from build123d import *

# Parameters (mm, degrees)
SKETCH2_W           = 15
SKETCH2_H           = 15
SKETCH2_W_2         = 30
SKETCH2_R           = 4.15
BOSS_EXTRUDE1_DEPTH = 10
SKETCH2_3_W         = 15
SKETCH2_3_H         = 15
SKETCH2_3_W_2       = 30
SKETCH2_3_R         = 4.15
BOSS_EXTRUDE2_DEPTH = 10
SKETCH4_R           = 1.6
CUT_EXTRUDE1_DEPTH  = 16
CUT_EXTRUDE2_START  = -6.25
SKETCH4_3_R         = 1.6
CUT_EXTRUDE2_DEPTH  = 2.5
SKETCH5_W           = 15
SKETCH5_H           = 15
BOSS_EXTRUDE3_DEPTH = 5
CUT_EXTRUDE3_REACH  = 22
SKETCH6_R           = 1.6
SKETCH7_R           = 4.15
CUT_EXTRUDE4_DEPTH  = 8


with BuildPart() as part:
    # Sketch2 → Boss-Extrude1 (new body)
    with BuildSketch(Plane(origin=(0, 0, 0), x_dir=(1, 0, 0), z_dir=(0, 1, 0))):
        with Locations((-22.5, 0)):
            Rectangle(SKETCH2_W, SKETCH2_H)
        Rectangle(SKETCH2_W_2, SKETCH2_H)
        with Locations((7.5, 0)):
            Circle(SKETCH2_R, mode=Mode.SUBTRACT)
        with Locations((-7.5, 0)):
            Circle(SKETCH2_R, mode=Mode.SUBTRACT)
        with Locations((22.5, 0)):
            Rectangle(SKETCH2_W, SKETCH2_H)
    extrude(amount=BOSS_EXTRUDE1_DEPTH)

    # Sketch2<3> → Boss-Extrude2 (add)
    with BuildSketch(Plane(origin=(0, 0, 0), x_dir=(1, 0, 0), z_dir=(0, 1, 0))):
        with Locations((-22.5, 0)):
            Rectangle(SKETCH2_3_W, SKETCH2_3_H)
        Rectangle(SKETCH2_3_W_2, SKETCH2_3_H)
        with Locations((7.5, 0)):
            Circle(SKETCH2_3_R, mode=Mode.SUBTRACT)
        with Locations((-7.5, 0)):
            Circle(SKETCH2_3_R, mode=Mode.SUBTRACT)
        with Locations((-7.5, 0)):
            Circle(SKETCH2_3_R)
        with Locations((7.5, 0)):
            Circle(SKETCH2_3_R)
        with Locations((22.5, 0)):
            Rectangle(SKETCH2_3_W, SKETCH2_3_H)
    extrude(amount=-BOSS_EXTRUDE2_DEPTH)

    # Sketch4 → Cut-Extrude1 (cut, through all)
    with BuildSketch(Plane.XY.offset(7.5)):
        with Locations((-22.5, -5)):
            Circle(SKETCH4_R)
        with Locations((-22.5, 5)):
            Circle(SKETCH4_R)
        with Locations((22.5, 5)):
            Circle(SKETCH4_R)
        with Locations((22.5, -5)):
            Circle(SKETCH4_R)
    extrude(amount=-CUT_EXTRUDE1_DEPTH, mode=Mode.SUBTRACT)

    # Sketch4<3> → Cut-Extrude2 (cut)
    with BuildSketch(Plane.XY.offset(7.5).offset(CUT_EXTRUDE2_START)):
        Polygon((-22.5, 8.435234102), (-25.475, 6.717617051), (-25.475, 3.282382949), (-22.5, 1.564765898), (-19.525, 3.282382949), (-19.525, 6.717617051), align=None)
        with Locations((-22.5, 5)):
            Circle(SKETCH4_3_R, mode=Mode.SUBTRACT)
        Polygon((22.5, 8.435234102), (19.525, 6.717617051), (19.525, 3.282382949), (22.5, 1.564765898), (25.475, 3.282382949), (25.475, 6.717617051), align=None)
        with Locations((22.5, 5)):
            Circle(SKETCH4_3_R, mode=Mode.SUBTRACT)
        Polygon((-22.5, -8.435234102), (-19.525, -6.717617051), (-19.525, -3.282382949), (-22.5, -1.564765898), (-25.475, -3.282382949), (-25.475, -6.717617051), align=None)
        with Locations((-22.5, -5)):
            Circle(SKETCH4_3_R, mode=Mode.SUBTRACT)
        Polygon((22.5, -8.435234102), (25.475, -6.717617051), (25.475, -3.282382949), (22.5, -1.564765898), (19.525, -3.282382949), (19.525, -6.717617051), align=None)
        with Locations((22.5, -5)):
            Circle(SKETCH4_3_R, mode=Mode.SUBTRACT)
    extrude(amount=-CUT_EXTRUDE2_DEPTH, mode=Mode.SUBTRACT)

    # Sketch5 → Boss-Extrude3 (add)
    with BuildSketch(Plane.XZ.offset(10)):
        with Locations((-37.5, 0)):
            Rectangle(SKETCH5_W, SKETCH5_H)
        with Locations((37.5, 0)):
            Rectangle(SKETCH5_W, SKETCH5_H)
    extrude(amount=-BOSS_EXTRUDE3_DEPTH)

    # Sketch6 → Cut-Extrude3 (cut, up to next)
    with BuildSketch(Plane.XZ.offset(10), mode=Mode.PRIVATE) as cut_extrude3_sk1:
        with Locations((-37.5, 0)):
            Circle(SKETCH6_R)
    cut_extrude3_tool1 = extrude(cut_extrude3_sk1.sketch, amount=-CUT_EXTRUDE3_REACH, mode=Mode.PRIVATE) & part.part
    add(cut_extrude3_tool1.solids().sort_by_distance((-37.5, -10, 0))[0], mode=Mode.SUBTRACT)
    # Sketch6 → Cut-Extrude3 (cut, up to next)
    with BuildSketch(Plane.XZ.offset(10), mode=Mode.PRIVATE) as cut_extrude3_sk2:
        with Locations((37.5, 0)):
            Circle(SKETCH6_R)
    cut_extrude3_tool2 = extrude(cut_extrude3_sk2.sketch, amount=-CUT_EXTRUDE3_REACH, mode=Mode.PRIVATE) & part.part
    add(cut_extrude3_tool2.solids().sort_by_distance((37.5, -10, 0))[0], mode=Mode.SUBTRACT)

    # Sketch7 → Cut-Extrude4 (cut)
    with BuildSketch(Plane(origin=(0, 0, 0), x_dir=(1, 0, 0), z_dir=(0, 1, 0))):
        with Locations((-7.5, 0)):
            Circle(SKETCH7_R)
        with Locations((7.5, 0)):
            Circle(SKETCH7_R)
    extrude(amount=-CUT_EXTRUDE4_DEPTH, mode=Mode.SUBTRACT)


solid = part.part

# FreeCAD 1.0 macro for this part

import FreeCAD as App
import Part
import Sketcher

V = App.Vector
Q = App.Units.Quantity

doc = App.newDocument("Part")
params = doc.addObject("Spreadsheet::Sheet", "Params")
for row, (alias, value) in enumerate([
    ("sketch1_diameter", "8.3 mm"),
    ("sketch1_width", "60 mm"),
    ("sketch1_height", "15 mm"),
    ("pad1_length", "10 mm"),
    ("sketch2_width", "60 mm"),
    ("sketch2_height", "15 mm"),
    ("pad2_length", "10 mm"),
    ("sketch3_diameter", "3.2 mm"),
    ("sketch4_diameter", "3.2 mm"),
    ("pocket2_length", "2.5 mm"),
    ("sketch5_width", "15 mm"),
    ("pad3_length", "5 mm"),
    ("sketch6_diameter", "3.2 mm"),
    ("sketch7_diameter", "3.2 mm"),
    ("sketch8_diameter", "8.3 mm"),
    ("pocket5_length", "8 mm"),
], start=1):
    params.set(f"A{row}", alias)
    params.set(f"B{row}", "=" + value)
    params.setAlias(f"B{row}", alias)

body = doc.addObject("PartDesign::Body", "Body")

# Sketch on XZ plane
sketch1 = body.newObject("Sketcher::SketchObject", "Sketch")
sketch1.AttachmentSupport = (doc.getObject("XZ_Plane"), [""])
sketch1.MapMode = "FlatFace"
sketch1.addGeometry([
    Part.LineSegment(V(-30, -7.5, 0), V(-30, 7.5, 0)),  # 0
    Part.LineSegment(V(-30, 7.5, 0), V(30, 7.5, 0)),  # 1
    Part.LineSegment(V(30, 7.5, 0), V(30, -7.5, 0)),  # 2
    Part.LineSegment(V(30, -7.5, 0), V(-30, -7.5, 0)),  # 3
    Part.Circle(V(-7.5, 0, 0), V(0, 0, 1), 4.2),  # 4
    Part.Circle(V(7.5, 0, 0), V(0, 0, 1), 4.2),  # 5
], False)
sketch1.addConstraint([
    Sketcher.Constraint("Coincident", 0, 2, 1, 1),
    Sketcher.Constraint("Coincident", 1, 2, 2, 1),
    Sketcher.Constraint("Coincident", 2, 2, 3, 1),
    Sketcher.Constraint("Coincident", 3, 2, 0, 1),
    Sketcher.Constraint("Vertical", 0),
    Sketcher.Constraint("Horizontal", 1),
    Sketcher.Constraint("Vertical", 2),
    Sketcher.Constraint("Horizontal", 3),
    Sketcher.Constraint("Equal", 4, 5),
    Sketcher.Constraint("Symmetric", 4, 3, 5, 3, -1, 1),
    Sketcher.Constraint("Symmetric", 0, 2, 2, 2, -1, 1),
    Sketcher.Constraint("PointOnObject", 4, 3, -1),
    Sketcher.Constraint("Diameter", 4, Q("8.3 mm")),
    Sketcher.Constraint("DistanceX", 1, 1, 1, 2, Q("60 mm")),
    Sketcher.Constraint("DistanceY", 0, 1, 0, 2, Q("15 mm")),
    Sketcher.Constraint("DistanceX", 4, 3, 5, 3, Q("15 mm")),
])
sketch1.setExpression("Constraints[12]", "Params.sketch1_diameter")
sketch1.setExpression("Constraints[13]", "Params.sketch1_width")
sketch1.setExpression("Constraints[14]", "Params.sketch1_height")
pad1 = body.newObject("PartDesign::Pad", "Pad")
pad1.Profile = sketch1
pad1.setExpression("Length", "Params.pad1_length")
pad1.Reversed = True

# Sketch on XZ plane
sketch2 = body.newObject("Sketcher::SketchObject", "Sketch001")
sketch2.AttachmentSupport = (doc.getObject("XZ_Plane"), [""])
sketch2.MapMode = "FlatFace"
sketch2.addGeometry([
    Part.LineSegment(V(-30, -8, 0), V(-30, 8, 0)),
    Part.LineSegment(V(-30, 8, 0), V(30, 8, 0)),
    Part.LineSegment(V(30, 8, 0), V(30, -8, 0)),
    Part.LineSegment(V(30, -8, 0), V(-30, -8, 0)),
], False)
sketch2.addConstraint([
    Sketcher.Constraint("Coincident", 0, 2, 1, 1),
    Sketcher.Constraint("Coincident", 1, 2, 2, 1),
    Sketcher.Constraint("Coincident", 2, 2, 3, 1),
    Sketcher.Constraint("Coincident", 3, 2, 0, 1),
    Sketcher.Constraint("Vertical", 0),
    Sketcher.Constraint("Horizontal", 1),
    Sketcher.Constraint("Vertical", 2),
    Sketcher.Constraint("Horizontal", 3),
    Sketcher.Constraint("Symmetric", 0, 2, 2, 2, -1, 1),
    Sketcher.Constraint("DistanceX", 1, 1, 1, 2, Q("60 mm")),
    Sketcher.Constraint("DistanceY", 0, 1, 0, 2, Q("15 mm")),
])
sketch2.setExpression("Constraints[9]", "Params.sketch2_width")
sketch2.setExpression("Constraints[10]", "Params.sketch2_height")
pad2 = body.newObject("PartDesign::Pad", "Pad001")
pad2.Profile = sketch2
pad2.setExpression("Length", "Params.pad2_length")

# Sketch on XY plane
sketch3 = body.newObject("Sketcher::SketchObject", "Sketch002")
sketch3.AttachmentSupport = (doc.getObject("XY_Plane"), [""])
sketch3.MapMode = "FlatFace"
sketch3.AttachmentOffset = App.Placement(V(0, 0, 7.5), App.Rotation())
sketch3.addGeometry([
    Part.Circle(V(-22.5, -5, 0), V(0, 0, 1), 1.6),
    Part.Circle(V(-22.5, 5, 0), V(0, 0, 1), 1.6),
    Part.Circle(V(22.5, 5, 0), V(0, 0, 1), 1.6),
    Part.Circle(V(22.5, -5, 0), V(0, 0, 1), 1.6),
], False)
sketch3.addConstraint([
    Sketcher.Constraint("Equal", 0, 1),
    Sketcher.Constraint("Equal", 1, 2),
    Sketcher.Constraint("Equal", 2, 3),
    Sketcher.Constraint("Symmetric", 0, 3, 2, 3, -1, 1),
    Sketcher.Constraint("Symmetric", 1, 3, 3, 3, -1, 1),
    Sketcher.Constraint("Symmetric", 1, 3, 2, 3, -2),
    Sketcher.Constraint("Diameter", 0, Q("3.2 mm")),
    Sketcher.Constraint("DistanceY", 0, 3, -1, 1, Q("5 mm")),
    Sketcher.Constraint("DistanceX", 1, 3, 2, 3, Q("45 mm")),
])
sketch3.setExpression("Constraints[6]", "Params.sketch3_diameter")
pocket1 = body.newObject("PartDesign::Pocket", "Pocket")
pocket1.Profile = sketch3
pocket1.Type = "ThroughAll"

# Sketch on XY plane
sketch4 = body.newObject("Sketcher::SketchObject", "Sketch003")
sketch4.AttachmentSupport = (doc.getObject("XY_Plane"), [""])
sketch4.MapMode = "FlatFace"
sketch4.AttachmentOffset = App.Placement(V(0, 0, 1.25), App.Rotation())
sketch4.addGeometry([
    Part.LineSegment(V(-22.5, 8.4, 0), V(-25.5, 6.7, 0)),  # 0
    Part.LineSegment(V(-25.5, 6.7, 0), V(-25.5, 3.3, 0)),  # 1
    Part.LineSegment(V(-25.5, 3.3, 0), V(-22.5, 1.6, 0)),  # 2
    Part.LineSegment(V(-22.5, 1.6, 0), V(-19.5, 3.3, 0)),  # 3
    Part.LineSegment(V(-19.5, 3.3, 0), V(-19.5, 6.7, 0)),  # 4
    Part.LineSegment(V(-19.5, 6.7, 0), V(-22.5, 8.4, 0)),  # 5
    Part.Circle(V(-22.5, 5, 0), V(0, 0, 1), 1.6),  # 6
    Part.LineSegment(V(22.5, 8.4, 0), V(19.5, 6.7, 0)),  # 7
    Part.LineSegment(V(19.5, 6.7, 0), V(19.5, 3.3, 0)),  # 8
    Part.LineSegment(V(19.5, 3.3, 0), V(22.5, 1.6, 0)),  # 9
    Part.LineSegment(V(22.5, 1.6, 0), V(25.5, 3.3, 0)),  # 10
    Part.LineSegment(V(25.5, 3.3, 0), V(25.5, 6.7, 0)),  # 11
    Part.LineSegment(V(25.5, 6.7, 0), V(22.5, 8.4, 0)),  # 12
    Part.Circle(V(22.5, 5, 0), V(0, 0, 1), 1.6),  # 13
    Part.LineSegment(V(-22.5, -8.4, 0), V(-19.5, -6.7, 0)),  # 14
    Part.LineSegment(V(-19.5, -6.7, 0), V(-19.5, -3.3, 0)),  # 15
    Part.LineSegment(V(-19.5, -3.3, 0), V(-22.5, -1.6, 0)),  # 16
    Part.LineSegment(V(-22.5, -1.6, 0), V(-25.5, -3.3, 0)),  # 17
    Part.LineSegment(V(-25.5, -3.3, 0), V(-25.5, -6.7, 0)),  # 18
    Part.LineSegment(V(-25.5, -6.7, 0), V(-22.5, -8.4, 0)),  # 19
    Part.Circle(V(-22.5, -5, 0), V(0, 0, 1), 1.6),  # 20
    Part.LineSegment(V(22.5, -8.4, 0), V(25.5, -6.7, 0)),  # 21
    Part.LineSegment(V(25.5, -6.7, 0), V(25.5, -3.3, 0)),  # 22
    Part.LineSegment(V(25.5, -3.3, 0), V(22.5, -1.6, 0)),  # 23
    Part.LineSegment(V(22.5, -1.6, 0), V(19.5, -3.3, 0)),  # 24
    Part.LineSegment(V(19.5, -3.3, 0), V(19.5, -6.7, 0)),  # 25
    Part.LineSegment(V(19.5, -6.7, 0), V(22.5, -8.4, 0)),  # 26
    Part.Circle(V(22.5, -5, 0), V(0, 0, 1), 1.6),  # 27
], False)
sketch4.addConstraint([
    Sketcher.Constraint("Coincident", 0, 2, 1, 1),
    Sketcher.Constraint("Coincident", 1, 2, 2, 1),
    Sketcher.Constraint("Coincident", 2, 2, 3, 1),
    Sketcher.Constraint("Coincident", 3, 2, 4, 1),
    Sketcher.Constraint("Coincident", 4, 2, 5, 1),
    Sketcher.Constraint("Coincident", 5, 2, 0, 1),
    Sketcher.Constraint("Coincident", 7, 2, 8, 1),
    Sketcher.Constraint("Coincident", 8, 2, 9, 1),
    Sketcher.Constraint("Coincident", 9, 2, 10, 1),
    Sketcher.Constraint("Coincident", 10, 2, 11, 1),
    Sketcher.Constraint("Coincident", 11, 2, 12, 1),
    Sketcher.Constraint("Coincident", 12, 2, 7, 1),
    Sketcher.Constraint("Coincident", 14, 2, 15, 1),
    Sketcher.Constraint("Coincident", 15, 2, 16, 1),
    Sketcher.Constraint("Coincident", 16, 2, 17, 1),
    Sketcher.Constraint("Coincident", 17, 2, 18, 1),
    Sketcher.Constraint("Coincident", 18, 2, 19, 1),
    Sketcher.Constraint("Coincident", 19, 2, 14, 1),
    Sketcher.Constraint("Coincident", 21, 2, 22, 1),
    Sketcher.Constraint("Coincident", 22, 2, 23, 1),
    Sketcher.Constraint("Coincident", 23, 2, 24, 1),
    Sketcher.Constraint("Coincident", 24, 2, 25, 1),
    Sketcher.Constraint("Coincident", 25, 2, 26, 1),
    Sketcher.Constraint("Coincident", 26, 2, 21, 1),
    Sketcher.Constraint("Vertical", 1),
    Sketcher.Constraint("Vertical", 4),
    Sketcher.Constraint("Vertical", 8),
    Sketcher.Constraint("Vertical", 11),
    Sketcher.Constraint("Vertical", 15),
    Sketcher.Constraint("Vertical", 18),
    Sketcher.Constraint("Vertical", 22),
    Sketcher.Constraint("Vertical", 25),
    Sketcher.Constraint("Equal", 6, 13),
    Sketcher.Constraint("Equal", 13, 20),
    Sketcher.Constraint("Equal", 20, 27),
    Sketcher.Constraint("Symmetric", 13, 3, 20, 3, -1, 1),
    Sketcher.Constraint("Symmetric", 6, 3, 27, 3, -1, 1),
    Sketcher.Constraint("Symmetric", 7, 2, 14, 2, -1, 1),
    Sketcher.Constraint("Symmetric", 9, 2, 16, 2, -1, 1),
    Sketcher.Constraint("Symmetric", 10, 2, 17, 2, -1, 1),
    Sketcher.Constraint("Symmetric", 12, 2, 19, 2, -1, 1),
    Sketcher.Constraint("Symmetric", 0, 2, 21, 2, -1, 1),
    Sketcher.Constraint("Symmetric", 2, 2, 23, 2, -1, 1),
    Sketcher.Constraint("Symmetric", 3, 2, 24, 2, -1, 1),
    Sketcher.Constraint("Symmetric", 5, 2, 26, 2, -1, 1),
    Sketcher.Constraint("Symmetric", 6, 3, 13, 3, -2),
    Sketcher.Constraint("Symmetric", 4, 2, 7, 2, -2),
    Sketcher.Constraint("Symmetric", 2, 2, 9, 2, -2),
    Sketcher.Constraint("Symmetric", 1, 2, 10, 2, -2),
    Sketcher.Constraint("Symmetric", 5, 2, 12, 2, -2),
    Sketcher.Constraint("Parallel", 0, 3),
    Sketcher.Constraint("Parallel", 2, 5),
    Sketcher.Constraint("Parallel", 3, 7),
    Sketcher.Constraint("Parallel", 5, 9),
    Sketcher.Constraint("Parallel", 9, 12),
    Sketcher.Constraint("Parallel", 12, 16),
    Sketcher.Constraint("Parallel", 16, 19),
    Sketcher.Constraint("Parallel", 19, 23),
    Sketcher.Constraint("Parallel", 23, 26),
    Sketcher.Constraint("Horizontal", 1, 2, 3, 2),
    Sketcher.Constraint("Horizontal", 0, 2, 4, 2),
    Sketcher.Constraint("Vertical", 20, 3, 2, 2),
    Sketcher.Constraint("Diameter", 6, Q("3.2 mm")),
    Sketcher.Constraint("Angle", 0, Q("-150 deg")),
    Sketcher.Constraint("DistanceY", -1, 1, 6, 3, Q("5 mm")),
    Sketcher.Constraint("DistanceX", 6, 3, 13, 3, Q("45 mm")),
    Sketcher.Constraint("DistanceY", 14, 2, 3, 2, Q("10 mm")),
    Sketcher.Constraint("DistanceX", 1, 2, 3, 2, Q("5.95 mm")),
    Sketcher.Constraint("DistanceY", 1, 2, 1, 1, Q("3.435234 mm")),
])
sketch4.setExpression("Constraints[62]", "Params.sketch4_diameter")
pocket2 = body.newObject("PartDesign::Pocket", "Pocket001")
pocket2.Profile = sketch4
pocket2.setExpression("Length", "Params.pocket2_length")

# Sketch on XZ plane
sketch5 = body.newObject("Sketcher::SketchObject", "Sketch004")
sketch5.AttachmentSupport = (doc.getObject("XZ_Plane"), [""])
sketch5.MapMode = "FlatFace"
sketch5.AttachmentOffset = App.Placement(V(0, 0, 10), App.Rotation())
sketch5.addGeometry([
    Part.LineSegment(V(-45, 8, 0), V(-45, -8, 0)),  # 0
    Part.LineSegment(V(-45, -8, 0), V(-30, -8, 0)),  # 1
    Part.LineSegment(V(-30, -8, 0), V(-30, 8, 0)),  # 2
    Part.LineSegment(V(-30, 8, 0), V(-45, 8, 0)),  # 3
    Part.LineSegment(V(30, 8, 0), V(30, -8, 0)),  # 4
    Part.LineSegment(V(30, -8, 0), V(45, -8, 0)),  # 5
    Part.LineSegment(V(45, -8, 0), V(45, 8, 0)),  # 6
    Part.LineSegment(V(45, 8, 0), V(30, 8, 0)),  # 7
], False)
sketch5.addConstraint([
    Sketcher.Constraint("Coincident", 0, 2, 1, 1),
    Sketcher.Constraint("Coincident", 1, 2, 2, 1),
    Sketcher.Constraint("Coincident", 2, 2, 3, 1),
    Sketcher.Constraint("Coincident", 3, 2, 0, 1),
    Sketcher.Constraint("Coincident", 4, 2, 5, 1),
    Sketcher.Constraint("Coincident", 5, 2, 6, 1),
    Sketcher.Constraint("Coincident", 6, 2, 7, 1),
    Sketcher.Constraint("Coincident", 7, 2, 4, 1),
    Sketcher.Constraint("Vertical", 0),
    Sketcher.Constraint("Horizontal", 1),
    Sketcher.Constraint("Vertical", 2),
    Sketcher.Constraint("Horizontal", 3),
    Sketcher.Constraint("Vertical", 4),
    Sketcher.Constraint("Horizontal", 5),
    Sketcher.Constraint("Vertical", 6),
    Sketcher.Constraint("Horizontal", 7),
    Sketcher.Constraint("Symmetric", 2, 2, 4, 2, -1, 1),
    Sketcher.Constraint("Symmetric", 0, 2, 6, 2, -1, 1),
    Sketcher.Constraint("Horizontal", 1, 2, 4, 2),
    Sketcher.Constraint("Equal", 7, 0),
    Sketcher.Constraint("DistanceX", 1, 1, 1, 2, Q("15 mm")),
    Sketcher.Constraint("DistanceX", 0, 2, -1, 1, Q("45 mm")),
])
sketch5.setExpression("Constraints[20]", "Params.sketch5_width")
pad3 = body.newObject("PartDesign::Pad", "Pad002")
pad3.Profile = sketch5
pad3.setExpression("Length", "Params.pad3_length")
pad3.Reversed = True

# Sketch on XZ plane
sketch6 = body.newObject("Sketcher::SketchObject", "Sketch005")
sketch6.AttachmentSupport = (doc.getObject("XZ_Plane"), [""])
sketch6.MapMode = "FlatFace"
sketch6.AttachmentOffset = App.Placement(V(0, 0, 10), App.Rotation())
sketch6.addGeometry(Part.Circle(V(-37.5, 0, 0), V(0, 0, 1), 1.6), False)
sketch6.addConstraint([
    Sketcher.Constraint("PointOnObject", 0, 3, -1),
    Sketcher.Constraint("Diameter", 0, Q("3.2 mm")),
    Sketcher.Constraint("DistanceX", 0, 3, -1, 1, Q("37.5 mm")),
])
sketch6.setExpression("Constraints[1]", "Params.sketch6_diameter")
pocket3 = body.newObject("PartDesign::Pocket", "Pocket002")
pocket3.Profile = sketch6
pocket3.Type = "UpToFirst"

# Sketch on XZ plane
sketch7 = body.newObject("Sketcher::SketchObject", "Sketch006")
sketch7.AttachmentSupport = (doc.getObject("XZ_Plane"), [""])
sketch7.MapMode = "FlatFace"
sketch7.AttachmentOffset = App.Placement(V(0, 0, 10), App.Rotation())
sketch7.addGeometry(Part.Circle(V(37.5, 0, 0), V(0, 0, 1), 1.6), False)
sketch7.addConstraint([
    Sketcher.Constraint("PointOnObject", 0, 3, -1),
    Sketcher.Constraint("Diameter", 0, Q("3.2 mm")),
    Sketcher.Constraint("DistanceX", -1, 1, 0, 3, Q("37.5 mm")),
])
sketch7.setExpression("Constraints[1]", "Params.sketch7_diameter")
pocket4 = body.newObject("PartDesign::Pocket", "Pocket003")
pocket4.Profile = sketch7
pocket4.Type = "UpToFirst"

# Sketch on XZ plane
sketch8 = body.newObject("Sketcher::SketchObject", "Sketch007")
sketch8.AttachmentSupport = (doc.getObject("XZ_Plane"), [""])
sketch8.MapMode = "FlatFace"
sketch8.addGeometry([
    Part.Circle(V(-7.5, 0, 0), V(0, 0, 1), 4.2),
    Part.Circle(V(7.5, 0, 0), V(0, 0, 1), 4.2),
], False)
sketch8.addConstraint([
    Sketcher.Constraint("Equal", 0, 1),
    Sketcher.Constraint("Symmetric", 0, 3, 1, 3, -1, 1),
    Sketcher.Constraint("PointOnObject", 0, 3, -1),
    Sketcher.Constraint("Diameter", 0, Q("8.3 mm")),
    Sketcher.Constraint("DistanceX", 0, 3, 1, 3, Q("15 mm")),
])
sketch8.setExpression("Constraints[3]", "Params.sketch8_diameter")
pocket5 = body.newObject("PartDesign::Pocket", "Pocket004")
pocket5.Profile = sketch8
pocket5.setExpression("Length", "Params.pocket5_length")
pocket5.Reversed = True

doc.recompute()
